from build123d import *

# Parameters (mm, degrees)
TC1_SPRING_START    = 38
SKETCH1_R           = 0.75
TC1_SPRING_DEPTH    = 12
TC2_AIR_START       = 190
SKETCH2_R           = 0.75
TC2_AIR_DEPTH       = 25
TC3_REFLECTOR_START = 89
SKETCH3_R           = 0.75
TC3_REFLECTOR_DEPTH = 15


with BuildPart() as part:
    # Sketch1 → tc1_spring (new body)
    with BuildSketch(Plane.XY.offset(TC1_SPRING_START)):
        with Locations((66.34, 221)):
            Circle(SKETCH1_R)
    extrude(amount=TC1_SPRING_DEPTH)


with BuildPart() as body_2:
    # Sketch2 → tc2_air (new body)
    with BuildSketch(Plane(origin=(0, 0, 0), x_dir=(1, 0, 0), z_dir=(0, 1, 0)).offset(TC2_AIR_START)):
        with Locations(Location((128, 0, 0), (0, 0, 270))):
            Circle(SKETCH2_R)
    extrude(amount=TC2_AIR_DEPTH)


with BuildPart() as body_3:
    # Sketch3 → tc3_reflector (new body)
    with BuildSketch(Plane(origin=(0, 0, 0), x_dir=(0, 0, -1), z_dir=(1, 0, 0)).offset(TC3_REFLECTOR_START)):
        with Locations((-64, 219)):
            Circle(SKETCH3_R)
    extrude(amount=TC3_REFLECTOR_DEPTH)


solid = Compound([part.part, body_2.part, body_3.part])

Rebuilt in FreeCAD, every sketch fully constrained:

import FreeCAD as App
import Part
import Sketcher
Q = App.Units.Quantity

doc = App.newDocument("Part")
body = doc.addObject("PartDesign::Body", "Body")

# Sketch on XY plane
sketch1 = body.newObject("Sketcher::SketchObject", "Sketch")
sketch1.AttachmentSupport = (doc.getObject("XY_Plane"), [""])
sketch1.MapMode = "FlatFace"
sketch1.AttachmentOffset = App.Placement(App.Vector(0, 0, 38), App.Rotation())
sketch1.addGeometry(Part.Circle(App.Vector(66.3, 221, 0), App.Vector(0, 0, 1), 0.8), False)
sketch1.addConstraint([
    Sketcher.Constraint("Diameter", 0, Q("1.5 mm")),
    Sketcher.Constraint("DistanceY", -1, 1, 0, 3, Q("221 mm")),
    Sketcher.Constraint("DistanceX", -1, 1, 0, 3, Q("66.34 mm")),
])
pad1 = body.newObject("PartDesign::Pad", "Pad")
pad1.Profile = sketch1
pad1.Length = 12
body2 = doc.addObject("PartDesign::Body", "Body001")

# Sketch on XZ plane
sketch2 = body2.newObject("Sketcher::SketchObject", "Sketch001")
sketch2.AttachmentSupport = (doc.getObject("XZ_Plane001"), [""])
sketch2.MapMode = "FlatFace"
sketch2.AttachmentOffset = App.Placement(App.Vector(0, 0, -190), App.Rotation())
sketch2.addGeometry(Part.Circle(App.Vector(128, 0, 0), App.Vector(0, 0, 1), 0.8), False)
sketch2.addConstraint([
    Sketcher.Constraint("PointOnObject", 0, 3, -1),
    Sketcher.Constraint("Diameter", 0, Q("1.5 mm")),
    Sketcher.Constraint("DistanceX", -1, 1, 0, 3, Q("128 mm")),
])
pad2 = body2.newObject("PartDesign::Pad", "Pad001")
pad2.Profile = sketch2
pad2.Length = 25
pad2.Reversed = True
body3 = doc.addObject("PartDesign::Body", "Body002")

# Sketch on YZ plane
sketch3 = body3.newObject("Sketcher::SketchObject", "Sketch002")
sketch3.AttachmentSupport = (doc.getObject("YZ_Plane002"), [""])
sketch3.MapMode = "FlatFace"
sketch3.AttachmentOffset = App.Placement(App.Vector(0, 0, 89), App.Rotation())
sketch3.addGeometry(Part.Circle(App.Vector(219, 64, 0), App.Vector(0, 0, 1), 0.8), False)
sketch3.addConstraint([
    Sketcher.Constraint("Diameter", 0, Q("1.5 mm")),
    Sketcher.Constraint("DistanceX", -1, 1, 0, 3, Q("219 mm")),
    Sketcher.Constraint("DistanceY", -1, 1, 0, 3, Q("64 mm")),
])
pad3 = body3.newObject("PartDesign::Pad", "Pad002")
pad3.Profile = sketch3
pad3.Length = 15

doc.recompute()
